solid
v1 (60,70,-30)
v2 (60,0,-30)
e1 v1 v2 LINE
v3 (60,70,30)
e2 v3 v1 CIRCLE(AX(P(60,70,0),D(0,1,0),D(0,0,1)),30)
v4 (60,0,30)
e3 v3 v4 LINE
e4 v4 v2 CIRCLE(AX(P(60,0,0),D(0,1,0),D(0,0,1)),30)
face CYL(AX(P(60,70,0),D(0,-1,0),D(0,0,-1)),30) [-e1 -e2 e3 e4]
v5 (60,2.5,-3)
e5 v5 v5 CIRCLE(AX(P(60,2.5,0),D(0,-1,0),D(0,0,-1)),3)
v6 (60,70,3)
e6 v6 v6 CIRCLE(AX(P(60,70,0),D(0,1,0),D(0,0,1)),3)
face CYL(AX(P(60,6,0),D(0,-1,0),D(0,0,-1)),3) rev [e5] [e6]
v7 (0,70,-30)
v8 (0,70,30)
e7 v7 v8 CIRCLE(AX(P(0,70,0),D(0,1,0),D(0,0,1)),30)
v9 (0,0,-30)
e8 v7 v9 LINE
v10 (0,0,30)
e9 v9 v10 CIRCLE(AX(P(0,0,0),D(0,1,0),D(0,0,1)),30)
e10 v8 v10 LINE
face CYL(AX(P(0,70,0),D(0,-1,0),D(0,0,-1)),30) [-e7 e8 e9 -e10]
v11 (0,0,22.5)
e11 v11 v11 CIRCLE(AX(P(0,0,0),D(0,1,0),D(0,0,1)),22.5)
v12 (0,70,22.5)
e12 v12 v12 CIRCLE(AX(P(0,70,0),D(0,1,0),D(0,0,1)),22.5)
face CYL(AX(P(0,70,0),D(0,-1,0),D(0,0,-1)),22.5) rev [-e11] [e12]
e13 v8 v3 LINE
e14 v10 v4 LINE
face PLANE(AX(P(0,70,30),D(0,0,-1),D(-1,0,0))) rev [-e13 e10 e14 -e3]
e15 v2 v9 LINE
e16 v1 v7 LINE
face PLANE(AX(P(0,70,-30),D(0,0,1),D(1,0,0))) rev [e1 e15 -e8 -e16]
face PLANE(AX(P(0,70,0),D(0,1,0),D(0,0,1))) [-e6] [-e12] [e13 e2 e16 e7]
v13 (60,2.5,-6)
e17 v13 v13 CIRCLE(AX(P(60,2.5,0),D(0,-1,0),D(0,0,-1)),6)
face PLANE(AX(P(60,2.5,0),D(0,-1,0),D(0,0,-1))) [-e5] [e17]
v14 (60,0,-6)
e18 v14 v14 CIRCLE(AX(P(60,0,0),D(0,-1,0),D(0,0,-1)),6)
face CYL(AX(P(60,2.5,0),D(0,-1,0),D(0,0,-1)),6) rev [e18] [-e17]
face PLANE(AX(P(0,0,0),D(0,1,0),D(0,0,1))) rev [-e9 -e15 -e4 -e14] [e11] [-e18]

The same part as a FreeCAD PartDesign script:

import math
import FreeCAD as App
import Part
import Sketcher
Q = App.Units.Quantity

doc = App.newDocument("Part")
body = doc.addObject("PartDesign::Body", "Body")

# Sketch on XZ plane
sketch1 = body.newObject("Sketcher::SketchObject", "Sketch")
sketch1.AttachmentSupport = (doc.getObject("XZ_Plane"), [""])
sketch1.MapMode = "FlatFace"
sketch1.addGeometry([
    Part.LineSegment(App.Vector(60, -30, 0), App.Vector(0, -30, 0)),  # 0
    Part.ArcOfCircle(Part.Circle(App.Vector(0, 0, 0), App.Vector(0, 0, 1), 30), math.radians(90), math.radians(270)),  # 1
    Part.LineSegment(App.Vector(0, 30, 0), App.Vector(60, 30, 0)),  # 2
    Part.ArcOfCircle(Part.Circle(App.Vector(60, 0, 0), App.Vector(0, 0, 1), 30), math.radians(-90), math.radians(90)),  # 3
    Part.Circle(App.Vector(0, 0, 0), App.Vector(0, 0, 1), 22),  # 4
], False)
sketch1.addConstraint([
    Sketcher.Constraint("Tangent", 0, 2, 1, 2),
    Sketcher.Constraint("Tangent", 1, 1, 2, 1),
    Sketcher.Constraint("Tangent", 2, 2, 3, 2),
    Sketcher.Constraint("Tangent", 3, 1, 0, 1),
    Sketcher.Constraint("Horizontal", 0),
    Sketcher.Constraint("Horizontal", 2),
    Sketcher.Constraint("Coincident", 1, 3, -1, 1),
    Sketcher.Constraint("Coincident", 4, 3, -1, 1),
    Sketcher.Constraint("Diameter", 4, Q("45 mm")),
    Sketcher.Constraint("Radius", 1, Q("30 mm")),
    Sketcher.Constraint("DistanceX", 0, 2, 0, 1, Q("60 mm")),
])
pad1 = body.newObject("PartDesign::Pad", "Pad")
pad1.Profile = sketch1
pad1.Length = 70
pad1.Reversed = True

# Sketch on XZ plane
sketch2 = body.newObject("Sketcher::SketchObject", "Sketch001")
sketch2.AttachmentSupport = (doc.getObject("XZ_Plane"), [""])
sketch2.MapMode = "FlatFace"
sketch2.addGeometry(Part.Circle(App.Vector(60, 0, 0), App.Vector(0, 0, 1), 6), False)
sketch2.addConstraint([
    Sketcher.Constraint("PointOnObject", 0, 3, -1),
    Sketcher.Constraint("Diameter", 0, Q("12 mm")),
    Sketcher.Constraint("DistanceX", -1, 1, 0, 3, Q("60 mm")),
])
pocket1 = body.newObject("PartDesign::Pocket", "Pocket")
pocket1.Profile = sketch2
pocket1.Length = 2.5

# Sketch on XZ plane
sketch3 = body.newObject("Sketcher::SketchObject", "Sketch002")
sketch3.AttachmentSupport = (doc.getObject("XZ_Plane"), [""])
sketch3.MapMode = "FlatFace"
sketch3.addGeometry(Part.Circle(App.Vector(60, 0, 0), App.Vector(0, 0, 1), 3), False)
sketch3.addConstraint([
    Sketcher.Constraint("PointOnObject", 0, 3, -1),
    Sketcher.Constraint("Diameter", 0, Q("6 mm")),
    Sketcher.Constraint("DistanceX", -1, 1, 0, 3, Q("60 mm")),
])
pocket2 = body.newObject("PartDesign::Pocket", "Pocket001")
pocket2.Profile = sketch3
pocket2.Length = 6

# Sketch on XZ plane
sketch4 = body.newObject("Sketcher::SketchObject", "Sketch003")
sketch4.AttachmentSupport = (doc.getObject("XZ_Plane"), [""])
sketch4.MapMode = "FlatFace"
sketch4.AttachmentOffset = App.Placement(App.Vector(0, 0, -70), App.Rotation())
sketch4.addGeometry(Part.Circle(App.Vector(60, 0, 0), App.Vector(0, 0, 1), 3), False)
sketch4.addConstraint([
    Sketcher.Constraint("PointOnObject", 0, 3, -1),
    Sketcher.Constraint("Diameter", 0, Q("6 mm")),
    Sketcher.Constraint("DistanceX", -1, 1, 0, 3, Q("60 mm")),
])
pocket3 = body.newObject("PartDesign::Pocket", "Pocket002")
pocket3.Profile = sketch4
pocket3.Type = "ThroughAll"
pocket3.Reversed = True

doc.recompute()
